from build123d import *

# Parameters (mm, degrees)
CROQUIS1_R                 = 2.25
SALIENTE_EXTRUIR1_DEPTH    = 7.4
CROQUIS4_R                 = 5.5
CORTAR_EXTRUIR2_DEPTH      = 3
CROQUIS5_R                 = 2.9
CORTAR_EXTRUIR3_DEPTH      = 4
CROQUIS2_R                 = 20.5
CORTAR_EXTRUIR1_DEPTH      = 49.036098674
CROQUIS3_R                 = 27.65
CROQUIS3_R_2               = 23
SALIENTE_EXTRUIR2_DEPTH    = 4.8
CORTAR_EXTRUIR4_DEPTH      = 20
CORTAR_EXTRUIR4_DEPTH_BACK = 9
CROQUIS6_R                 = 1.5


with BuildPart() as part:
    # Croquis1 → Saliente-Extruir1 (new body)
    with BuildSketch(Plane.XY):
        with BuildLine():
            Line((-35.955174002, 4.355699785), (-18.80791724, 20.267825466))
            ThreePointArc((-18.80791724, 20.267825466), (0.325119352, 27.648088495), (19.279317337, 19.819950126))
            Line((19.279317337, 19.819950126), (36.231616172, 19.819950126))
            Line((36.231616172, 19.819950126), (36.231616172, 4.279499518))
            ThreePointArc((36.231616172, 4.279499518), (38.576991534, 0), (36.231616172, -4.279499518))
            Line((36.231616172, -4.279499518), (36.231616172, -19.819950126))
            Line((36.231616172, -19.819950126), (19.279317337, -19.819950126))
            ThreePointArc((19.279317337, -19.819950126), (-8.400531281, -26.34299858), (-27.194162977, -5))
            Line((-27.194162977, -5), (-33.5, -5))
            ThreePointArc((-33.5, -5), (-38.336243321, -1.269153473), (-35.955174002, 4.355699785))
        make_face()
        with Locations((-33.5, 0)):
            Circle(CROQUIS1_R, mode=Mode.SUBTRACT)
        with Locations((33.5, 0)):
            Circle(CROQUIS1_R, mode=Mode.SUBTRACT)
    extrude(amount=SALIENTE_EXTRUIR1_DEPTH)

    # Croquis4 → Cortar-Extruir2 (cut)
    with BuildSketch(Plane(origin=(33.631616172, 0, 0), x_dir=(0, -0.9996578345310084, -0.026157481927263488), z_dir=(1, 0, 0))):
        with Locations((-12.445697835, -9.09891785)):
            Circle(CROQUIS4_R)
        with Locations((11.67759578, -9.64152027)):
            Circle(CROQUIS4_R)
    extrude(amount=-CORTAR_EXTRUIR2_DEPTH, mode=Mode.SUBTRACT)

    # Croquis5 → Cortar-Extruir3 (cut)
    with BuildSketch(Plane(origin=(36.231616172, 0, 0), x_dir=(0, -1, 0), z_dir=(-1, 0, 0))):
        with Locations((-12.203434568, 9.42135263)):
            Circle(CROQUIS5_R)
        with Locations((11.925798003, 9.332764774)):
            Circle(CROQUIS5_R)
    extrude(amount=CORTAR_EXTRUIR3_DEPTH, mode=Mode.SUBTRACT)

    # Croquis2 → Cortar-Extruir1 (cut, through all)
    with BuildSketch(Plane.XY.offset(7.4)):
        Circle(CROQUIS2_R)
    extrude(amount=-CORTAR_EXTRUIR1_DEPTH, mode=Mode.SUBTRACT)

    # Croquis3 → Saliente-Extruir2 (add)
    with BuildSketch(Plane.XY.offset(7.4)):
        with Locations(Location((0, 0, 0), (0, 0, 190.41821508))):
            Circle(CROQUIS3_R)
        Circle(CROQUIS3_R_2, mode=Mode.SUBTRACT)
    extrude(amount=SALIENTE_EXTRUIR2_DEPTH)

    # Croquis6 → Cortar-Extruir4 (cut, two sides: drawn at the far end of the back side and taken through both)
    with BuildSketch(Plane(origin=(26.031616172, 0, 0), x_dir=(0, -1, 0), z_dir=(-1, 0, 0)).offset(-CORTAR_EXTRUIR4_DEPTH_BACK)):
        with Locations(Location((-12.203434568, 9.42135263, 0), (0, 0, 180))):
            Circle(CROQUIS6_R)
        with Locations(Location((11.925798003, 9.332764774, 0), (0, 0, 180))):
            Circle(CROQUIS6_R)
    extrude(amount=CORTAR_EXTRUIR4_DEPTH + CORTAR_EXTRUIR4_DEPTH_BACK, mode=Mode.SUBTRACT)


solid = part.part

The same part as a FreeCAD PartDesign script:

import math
import FreeCAD as App
import Part
import Sketcher
from FreeCAD import Vector

doc = App.newDocument("Part")
params = doc.addObject("Spreadsheet::Sheet", "Params")
for row, (alias, value) in enumerate([
    ("sketch1_radius", "5 mm"),
    ("sketch1_diameter", "4.5 mm"),
    ("sketch1_radius2", "27.65 mm"),
    ("pad1_length", "7.4 mm"),
    ("sketch2_diameter", "11 mm"),
    ("pocket1_length", "3 mm"),
    ("sketch3_diameter", "5.8 mm"),
    ("pocket2_length", "4 mm"),
    ("sketch4_diameter", "41 mm"),
    ("sketch5_diameter", "46 mm"),
    ("sketch5_diameter2", "55.3 mm"),
    ("pad2_length", "4.8 mm"),
    ("sketch6_diameter", "3 mm"),
    ("pocket4_length", "20 mm"),
    ("pocket4_length2", "9 mm"),
], start=1):
    params.set(f"A{row}", alias)
    params.set(f"B{row}", "=" + value)
    params.setAlias(f"B{row}", alias)

body = doc.addObject("PartDesign::Body", "Body")

sketch1 = doc.addObject("Sketcher::SketchObject", "Sketch")
body.addObject(sketch1)
sketch1.AttachmentSupport = (doc.XY_Plane, [""])
sketch1.MapMode = "FlatFace"
sketch1.addGeometry([
    Part.LineSegment(Vector(-18.807917, 20.267825, 0), Vector(-35.955174, 4.3557, 0)),
    Part.ArcOfCircle(Part.Circle(Vector(-33.5, 0, 0), Vector(0, 0, 1), 5), math.radians(119.408619), math.radians(270)),
    Part.LineSegment(Vector(-33.5, -5, 0), Vector(-27.194163, -5, 0)),
    Part.ArcOfCircle(Part.Circle(Vector(0, 0, 0), Vector(0, 0, 1), 27.65), math.radians(-169.581785), math.radians(-45.792189)),
    Part.LineSegment(Vector(19.279317, -19.81995, 0), Vector(36.231616, -19.81995, 0)),
    Part.LineSegment(Vector(36.231616, -19.81995, 0), Vector(36.231616, -4.2795, 0)),
    Part.ArcOfCircle(Part.Circle(Vector(33.5, 0, 0), Vector(0, 0, 1), 5.076992), math.radians(-57.449799), math.radians(57.449799)),
    Part.LineSegment(Vector(36.231616, 4.2795, 0), Vector(36.231616, 19.81995, 0)),
    Part.LineSegment(Vector(36.231616, 19.81995, 0), Vector(19.279317, 19.81995, 0)),
    Part.ArcOfCircle(Part.Circle(Vector(0, 0, 0), Vector(0, 0, 1), 27.65), math.radians(45.792189), math.radians(132.860368)),
    Part.Circle(Vector(33.5, 0, 0), Vector(0, 0, 1), 2.25),
    Part.Circle(Vector(-33.5, 0, 0), Vector(0, 0, 1), 2.25),
], False)
sketch1.addConstraint([
    Sketcher.Constraint("Coincident", 0, 2, 1, 1),
    Sketcher.Constraint("Tangent", 1, 2, 2, 1),
    Sketcher.Constraint("Coincident", 2, 2, 3, 1),
    Sketcher.Constraint("Coincident", 3, 2, 4, 1),
    Sketcher.Constraint("Coincident", 4, 2, 5, 1),
    Sketcher.Constraint("Coincident", 5, 2, 6, 1),
    Sketcher.Constraint("Coincident", 6, 2, 7, 1),
    Sketcher.Constraint("Coincident", 7, 2, 8, 1),
    Sketcher.Constraint("Coincident", 8, 2, 9, 1),
    Sketcher.Constraint("Tangent", 9, 2, 0, 1),
    Sketcher.Constraint("Horizontal", 2),
    Sketcher.Constraint("Horizontal", 4),
    Sketcher.Constraint("Vertical", 5),
    Sketcher.Constraint("Vertical", 7),
    Sketcher.Constraint("Horizontal", 8),
    Sketcher.Constraint("Coincident", 3, 3, -1, 1),
    Sketcher.Constraint("Coincident", 9, 3, -1, 1),
    Sketcher.Constraint("Coincident", 10, 3, 6, 3),
    Sketcher.Constraint("Coincident", 11, 3, 1, 3),
    Sketcher.Constraint("Equal", 3, 9),
    Sketcher.Constraint("Equal", 10, 11),
    Sketcher.Constraint("Symmetric", 1, 3, 6, 3, -1, 1),
    Sketcher.Constraint("Symmetric", 5, 2, 6, 2, -1),
    Sketcher.Constraint("Vertical", 3, 2, 8, 2),
    Sketcher.Constraint("Radius", 1, 5.0),
    Sketcher.Constraint("Diameter", 10, 4.5),
    Sketcher.Constraint("Radius", 3, 27.65),
    Sketcher.Constraint("DistanceX", 1, 3, 6, 3, 67.0),
    Sketcher.Constraint("Radius", 6, 5.076992),
    Sketcher.Constraint("DistanceX", 4, 1, 4, 2, 16.952299),
    Sketcher.Constraint("DistanceY", 5, 2, 6, 2, 8.558999),
    Sketcher.Constraint("DistanceY", -1, 1, 0, 2, 4.3557),
])
sketch1.setExpression("Constraints[24]", "Params.sketch1_radius")
sketch1.setExpression("Constraints[25]", "Params.sketch1_diameter")
sketch1.setExpression("Constraints[26]", "Params.sketch1_radius2")
pad1 = doc.addObject("PartDesign::Pad", "Pad")
body.addObject(pad1)
pad1.Profile = sketch1
pad1.setExpression("Length", "Params.pad1_length")

sketch2 = doc.addObject("Sketcher::SketchObject", "Sketch001")
body.addObject(sketch2)
sketch2.AttachmentSupport = (doc.YZ_Plane, [""])
sketch2.MapMode = "FlatFace"
sketch2.AttachmentOffset = App.Placement(Vector(0, 0, 33.631616), App.Rotation())
sketch2.addGeometry([
    Part.Circle(Vector(12.203435, 9.421353, 0), Vector(0, 0, 1), 5.5),
    Part.Circle(Vector(-11.925798, 9.332765, 0), Vector(0, 0, 1), 5.5),
], False)
sketch2.addConstraint([
    Sketcher.Constraint("Equal", 0, 1),
    Sketcher.Constraint("Diameter", 0, 11.0),
    Sketcher.Constraint("DistanceX", 1, 3, -1, 1, 11.925798),
    Sketcher.Constraint("DistanceX", -1, 1, 0, 3, 12.203435),
    Sketcher.Constraint("DistanceY", -1, 1, 0, 3, 9.421353),
    Sketcher.Constraint("DistanceY", -1, 1, 1, 3, 9.332765),
])
sketch2.setExpression("Constraints[1]", "Params.sketch2_diameter")
pocket1 = doc.addObject("PartDesign::Pocket", "Pocket")
body.addObject(pocket1)
pocket1.Profile = sketch2
pocket1.setExpression("Length", "Params.pocket1_length")

sketch3 = doc.addObject("Sketcher::SketchObject", "Sketch002")
body.addObject(sketch3)
sketch3.AttachmentSupport = (doc.YZ_Plane, [""])
sketch3.MapMode = "FlatFace"
sketch3.AttachmentOffset = App.Placement(Vector(0, 0, 36.231616), App.Rotation())
sketch3.addGeometry([
    Part.Circle(Vector(12.203435, 9.421353, 0), Vector(0, 0, 1), 2.9),
    Part.Circle(Vector(-11.925798, 9.332765, 0), Vector(0, 0, 1), 2.9),
], False)
sketch3.addConstraint([
    Sketcher.Constraint("Equal", 0, 1),
    Sketcher.Constraint("Diameter", 0, 5.8),
    Sketcher.Constraint("DistanceX", 1, 3, -1, 1, 11.925798),
    Sketcher.Constraint("DistanceX", -1, 1, 0, 3, 12.203435),
    Sketcher.Constraint("DistanceY", -1, 1, 0, 3, 9.421353),
    Sketcher.Constraint("DistanceY", -1, 1, 1, 3, 9.332765),
])
sketch3.setExpression("Constraints[1]", "Params.sketch3_diameter")
pocket2 = doc.addObject("PartDesign::Pocket", "Pocket001")
body.addObject(pocket2)
pocket2.Profile = sketch3
pocket2.setExpression("Length", "Params.pocket2_length")

sketch4 = doc.addObject("Sketcher::SketchObject", "Sketch003")
body.addObject(sketch4)
sketch4.AttachmentSupport = (doc.XY_Plane, [""])
sketch4.MapMode = "FlatFace"
sketch4.AttachmentOffset = App.Placement(Vector(0, 0, 7.4), App.Rotation())
sketch4.addGeometry(Part.Circle(Vector(0, 0, 0), Vector(0, 0, 1), 20.5), False)
sketch4.addConstraint([
    Sketcher.Constraint("Coincident", 0, 3, -1, 1),
    Sketcher.Constraint("Diameter", 0, 41.0),
])
sketch4.setExpression("Constraints[1]", "Params.sketch4_diameter")
pocket3 = doc.addObject("PartDesign::Pocket", "Pocket002")
body.addObject(pocket3)
pocket3.Profile = sketch4
pocket3.Type = "ThroughAll"

sketch5 = doc.addObject("Sketcher::SketchObject", "Sketch004")
body.addObject(sketch5)
sketch5.AttachmentSupport = (doc.XY_Plane, [""])
sketch5.MapMode = "FlatFace"
sketch5.AttachmentOffset = App.Placement(Vector(0, 0, 7.4), App.Rotation())
sketch5.addGeometry([
    Part.Circle(Vector(0, 0, 0), Vector(0, 0, 1), 27.65),
    Part.Circle(Vector(0, 0, 0), Vector(0, 0, 1), 23),
], False)
sketch5.addConstraint([
    Sketcher.Constraint("Coincident", 0, 3, -1, 1),
    Sketcher.Constraint("Coincident", 1, 3, -1, 1),
    Sketcher.Constraint("Diameter", 1, 46.0),
    Sketcher.Constraint("Diameter", 0, 55.3),
])
sketch5.setExpression("Constraints[2]", "Params.sketch5_diameter")
sketch5.setExpression("Constraints[3]", "Params.sketch5_diameter2")
pad2 = doc.addObject("PartDesign::Pad", "Pad001")
body.addObject(pad2)
pad2.Profile = sketch5
pad2.setExpression("Length", "Params.pad2_length")

sketch6 = doc.addObject("Sketcher::SketchObject", "Sketch005")
body.addObject(sketch6)
sketch6.AttachmentSupport = (doc.YZ_Plane, [""])
sketch6.MapMode = "FlatFace"
sketch6.AttachmentOffset = App.Placement(Vector(0, 0, 26.031616), App.Rotation())
sketch6.addGeometry([
    Part.Circle(Vector(12.203435, 9.421353, 0), Vector(0, 0, 1), 1.5),
    Part.Circle(Vector(-11.925798, 9.332765, 0), Vector(0, 0, 1), 1.5),
], False)
sketch6.addConstraint([
    Sketcher.Constraint("Equal", 0, 1),
    Sketcher.Constraint("Diameter", 0, 3.0),
    Sketcher.Constraint("DistanceX", 1, 3, -1, 1, 11.925798),
    Sketcher.Constraint("DistanceX", -1, 1, 0, 3, 12.203435),
    Sketcher.Constraint("DistanceY", -1, 1, 0, 3, 9.421353),
    Sketcher.Constraint("DistanceY", -1, 1, 1, 3, 9.332765),
])
sketch6.setExpression("Constraints[1]", "Params.sketch6_diameter")
pocket4 = doc.addObject("PartDesign::Pocket", "Pocket003")
body.addObject(pocket4)
pocket4.Profile = sketch6
pocket4.Type = "TwoLengths"
pocket4.setExpression("Length", "Params.pocket4_length")
pocket4.setExpression("Length2", "Params.pocket4_length2")

doc.recompute()
